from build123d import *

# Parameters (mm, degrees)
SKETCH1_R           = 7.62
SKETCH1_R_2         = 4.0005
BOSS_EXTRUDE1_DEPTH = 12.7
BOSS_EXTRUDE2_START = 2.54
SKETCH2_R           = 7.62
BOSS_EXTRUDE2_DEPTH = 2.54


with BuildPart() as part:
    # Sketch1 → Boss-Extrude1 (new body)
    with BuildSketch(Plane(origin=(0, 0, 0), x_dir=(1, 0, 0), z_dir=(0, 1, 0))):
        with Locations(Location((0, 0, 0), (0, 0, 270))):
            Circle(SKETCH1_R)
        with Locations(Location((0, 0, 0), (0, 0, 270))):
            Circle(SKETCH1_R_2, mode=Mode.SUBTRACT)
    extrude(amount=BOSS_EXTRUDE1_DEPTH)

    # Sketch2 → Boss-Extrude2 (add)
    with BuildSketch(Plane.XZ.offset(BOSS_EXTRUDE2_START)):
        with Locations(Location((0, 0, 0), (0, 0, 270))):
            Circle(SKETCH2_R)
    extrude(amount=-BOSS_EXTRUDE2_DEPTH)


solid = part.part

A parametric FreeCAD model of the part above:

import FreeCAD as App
import Part
import Sketcher

V = App.Vector
Q = App.Units.Quantity

doc = App.newDocument("Part")
params = doc.addObject("Spreadsheet::Sheet", "Params")
for row, (alias, value) in enumerate([
    ("sketch1_diameter", "0.6 in"),
    ("sketch1_diameter2", "0.315 in"),
    ("pad1_length", "0.5 in"),
    ("sketch2_diameter", "0.6 in"),
    ("pad2_length", "0.1 in"),
], start=1):
    params.set(f"A{row}", alias)
    params.set(f"B{row}", "=" + value)
    params.setAlias(f"B{row}", alias)

body = doc.addObject("PartDesign::Body", "Body")

# Sketch on XZ plane
sketch1 = doc.addObject("Sketcher::SketchObject", "Sketch")
body.addObject(sketch1)
sketch1.AttachmentSupport = (doc.XZ_Plane, [""])
sketch1.MapMode = "FlatFace"
sketch1.addGeometry(Part.Circle(V(0, 0, 0), V(0, 0, 1), 7.6), False)
sketch1.addGeometry(Part.Circle(V(0, 0, 0), V(0, 0, 1), 4), False)
sketch1.addConstraint(Sketcher.Constraint("Coincident", 0, 3, -1, 1))
sketch1.addConstraint(Sketcher.Constraint("Coincident", 1, 3, -1, 1))
sketch1.addConstraint(Sketcher.Constraint("Diameter", 0, Q("0.6 in")))
sketch1.addConstraint(Sketcher.Constraint("Diameter", 1, Q("0.315 in")))
sketch1.setExpression("Constraints[2]", "Params.sketch1_diameter")
sketch1.setExpression("Constraints[3]", "Params.sketch1_diameter2")
pad1 = doc.addObject("PartDesign::Pad", "Pad")
body.addObject(pad1)
pad1.Profile = sketch1
pad1.setExpression("Length", "Params.pad1_length")
pad1.Reversed = True

# Sketch on XZ plane
sketch2 = doc.addObject("Sketcher::SketchObject", "Sketch001")
body.addObject(sketch2)
sketch2.AttachmentSupport = (doc.XZ_Plane, [""])
sketch2.MapMode = "FlatFace"
sketch2.AttachmentOffset = App.Placement(V(0, 0, 0.1 * 25.4), App.Rotation())
sketch2.addGeometry(Part.Circle(V(0, 0, 0), V(0, 0, 1), 8), False)
sketch2.addConstraint(Sketcher.Constraint("Coincident", 0, 3, -1, 1))
sketch2.addConstraint(Sketcher.Constraint("Diameter", 0, Q("0.6 in")))
sketch2.setExpression("Constraints[1]", "Params.sketch2_diameter")
pad2 = doc.addObject("PartDesign::Pad", "Pad001")
body.addObject(pad2)
pad2.Profile = sketch2
pad2.setExpression("Length", "Params.pad2_length")
pad2.Reversed = True

doc.recompute()
